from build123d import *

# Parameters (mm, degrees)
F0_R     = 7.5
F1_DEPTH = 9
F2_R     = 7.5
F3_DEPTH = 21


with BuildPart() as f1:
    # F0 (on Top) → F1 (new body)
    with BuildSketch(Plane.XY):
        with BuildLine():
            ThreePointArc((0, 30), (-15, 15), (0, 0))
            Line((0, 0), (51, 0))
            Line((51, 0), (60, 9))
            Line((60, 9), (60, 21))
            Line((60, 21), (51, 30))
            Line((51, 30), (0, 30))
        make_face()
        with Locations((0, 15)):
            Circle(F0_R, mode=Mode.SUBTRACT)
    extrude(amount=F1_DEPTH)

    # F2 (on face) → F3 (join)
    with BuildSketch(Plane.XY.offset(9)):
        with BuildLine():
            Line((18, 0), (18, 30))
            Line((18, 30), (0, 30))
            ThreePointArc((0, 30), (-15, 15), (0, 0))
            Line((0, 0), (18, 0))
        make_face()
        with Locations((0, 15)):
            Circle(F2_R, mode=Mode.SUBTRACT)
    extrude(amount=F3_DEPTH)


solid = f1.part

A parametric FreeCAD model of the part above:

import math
import FreeCAD as App
import Part
import Sketcher

V = App.Vector
Q = App.Units.Quantity

doc = App.newDocument("Part")
body = doc.addObject("PartDesign::Body", "Body")

sketch1 = body.newObject("Sketcher::SketchObject", "Sketch")
sketch1.AttachmentSupport = (doc.getObject("XY_Plane"), [""])
sketch1.MapMode = "FlatFace"
sketch1.addGeometry([
    Part.ArcOfCircle(Part.Circle(V(0, 15, 0), V(0, 0, 1), 15), math.radians(90), math.radians(270)),
    Part.LineSegment(V(0, 0, 0), V(51, 0, 0)),
    Part.LineSegment(V(51, 0, 0), V(60, 9, 0)),
    Part.LineSegment(V(60, 9, 0), V(60, 21, 0)),
    Part.LineSegment(V(60, 21, 0), V(51, 30, 0)),
    Part.LineSegment(V(51, 30, 0), V(0, 30, 0)),
    Part.Circle(V(0, 15, 0), V(0, 0, 1), 8),
], False)
sketch1.addConstraint([
    Sketcher.Constraint("Tangent", 0, 2, 1, 1),
    Sketcher.Constraint("Coincident", 1, 2, 2, 1),
    Sketcher.Constraint("Coincident", 2, 2, 3, 1),
    Sketcher.Constraint("Coincident", 3, 2, 4, 1),
    Sketcher.Constraint("Coincident", 4, 2, 5, 1),
    Sketcher.Constraint("Tangent", 5, 2, 0, 1),
    Sketcher.Constraint("Horizontal", 1),
    Sketcher.Constraint("Vertical", 3),
    Sketcher.Constraint("Horizontal", 5),
    Sketcher.Constraint("Coincident", 0, 2, -1, 1),
    Sketcher.Constraint("Coincident", 6, 3, 0, 3),
    Sketcher.Constraint("Perpendicular", 2, 4),
    Sketcher.Constraint("Vertical", 1, 2, 4, 2),
    Sketcher.Constraint("Equal", 2, 4),
    Sketcher.Constraint("Diameter", 6, Q("15 mm")),
    Sketcher.Constraint("Radius", 0, Q("15 mm")),
    Sketcher.Constraint("DistanceX", 1, 1, 1, 2, Q("51 mm")),
    Sketcher.Constraint("DistanceY", 3, 1, 3, 2, Q("12 mm")),
])
pad1 = body.newObject("PartDesign::Pad", "Pad")
pad1.Profile = sketch1
pad1.Length = 9

sketch2 = body.newObject("Sketcher::SketchObject", "Sketch001")
sketch2.AttachmentSupport = (doc.getObject("XY_Plane"), [""])
sketch2.MapMode = "FlatFace"
sketch2.AttachmentOffset = App.Placement(V(0, 0, 9), App.Rotation())
sketch2.addGeometry([
    Part.LineSegment(V(18, 0, 0), V(18, 30, 0)),
    Part.LineSegment(V(18, 30, 0), V(0, 30, 0)),
    Part.ArcOfCircle(Part.Circle(V(0, 15, 0), V(0, 0, 1), 15), math.radians(90), math.radians(270)),
    Part.LineSegment(V(0, 0, 0), V(18, 0, 0)),
    Part.Circle(V(0, 15, 0), V(0, 0, 1), 8),
], False)
sketch2.addConstraint([
    Sketcher.Constraint("Coincident", 0, 2, 1, 1),
    Sketcher.Constraint("Tangent", 1, 2, 2, 1),
    Sketcher.Constraint("Tangent", 2, 2, 3, 1),
    Sketcher.Constraint("Coincident", 3, 2, 0, 1),
    Sketcher.Constraint("Vertical", 0),
    Sketcher.Constraint("Horizontal", 1),
    Sketcher.Constraint("Horizontal", 3),
    Sketcher.Constraint("Coincident", 2, 2, -1, 1),
    Sketcher.Constraint("Coincident", 4, 3, 2, 3),
    Sketcher.Constraint("Diameter", 4, Q("15 mm")),
    Sketcher.Constraint("Radius", 2, Q("15 mm")),
    Sketcher.Constraint("DistanceX", 1, 2, 1, 1, Q("18 mm")),
])
pad2 = body.newObject("PartDesign::Pad", "Pad001")
pad2.Profile = sketch2
pad2.Length = 21

doc.recompute()
